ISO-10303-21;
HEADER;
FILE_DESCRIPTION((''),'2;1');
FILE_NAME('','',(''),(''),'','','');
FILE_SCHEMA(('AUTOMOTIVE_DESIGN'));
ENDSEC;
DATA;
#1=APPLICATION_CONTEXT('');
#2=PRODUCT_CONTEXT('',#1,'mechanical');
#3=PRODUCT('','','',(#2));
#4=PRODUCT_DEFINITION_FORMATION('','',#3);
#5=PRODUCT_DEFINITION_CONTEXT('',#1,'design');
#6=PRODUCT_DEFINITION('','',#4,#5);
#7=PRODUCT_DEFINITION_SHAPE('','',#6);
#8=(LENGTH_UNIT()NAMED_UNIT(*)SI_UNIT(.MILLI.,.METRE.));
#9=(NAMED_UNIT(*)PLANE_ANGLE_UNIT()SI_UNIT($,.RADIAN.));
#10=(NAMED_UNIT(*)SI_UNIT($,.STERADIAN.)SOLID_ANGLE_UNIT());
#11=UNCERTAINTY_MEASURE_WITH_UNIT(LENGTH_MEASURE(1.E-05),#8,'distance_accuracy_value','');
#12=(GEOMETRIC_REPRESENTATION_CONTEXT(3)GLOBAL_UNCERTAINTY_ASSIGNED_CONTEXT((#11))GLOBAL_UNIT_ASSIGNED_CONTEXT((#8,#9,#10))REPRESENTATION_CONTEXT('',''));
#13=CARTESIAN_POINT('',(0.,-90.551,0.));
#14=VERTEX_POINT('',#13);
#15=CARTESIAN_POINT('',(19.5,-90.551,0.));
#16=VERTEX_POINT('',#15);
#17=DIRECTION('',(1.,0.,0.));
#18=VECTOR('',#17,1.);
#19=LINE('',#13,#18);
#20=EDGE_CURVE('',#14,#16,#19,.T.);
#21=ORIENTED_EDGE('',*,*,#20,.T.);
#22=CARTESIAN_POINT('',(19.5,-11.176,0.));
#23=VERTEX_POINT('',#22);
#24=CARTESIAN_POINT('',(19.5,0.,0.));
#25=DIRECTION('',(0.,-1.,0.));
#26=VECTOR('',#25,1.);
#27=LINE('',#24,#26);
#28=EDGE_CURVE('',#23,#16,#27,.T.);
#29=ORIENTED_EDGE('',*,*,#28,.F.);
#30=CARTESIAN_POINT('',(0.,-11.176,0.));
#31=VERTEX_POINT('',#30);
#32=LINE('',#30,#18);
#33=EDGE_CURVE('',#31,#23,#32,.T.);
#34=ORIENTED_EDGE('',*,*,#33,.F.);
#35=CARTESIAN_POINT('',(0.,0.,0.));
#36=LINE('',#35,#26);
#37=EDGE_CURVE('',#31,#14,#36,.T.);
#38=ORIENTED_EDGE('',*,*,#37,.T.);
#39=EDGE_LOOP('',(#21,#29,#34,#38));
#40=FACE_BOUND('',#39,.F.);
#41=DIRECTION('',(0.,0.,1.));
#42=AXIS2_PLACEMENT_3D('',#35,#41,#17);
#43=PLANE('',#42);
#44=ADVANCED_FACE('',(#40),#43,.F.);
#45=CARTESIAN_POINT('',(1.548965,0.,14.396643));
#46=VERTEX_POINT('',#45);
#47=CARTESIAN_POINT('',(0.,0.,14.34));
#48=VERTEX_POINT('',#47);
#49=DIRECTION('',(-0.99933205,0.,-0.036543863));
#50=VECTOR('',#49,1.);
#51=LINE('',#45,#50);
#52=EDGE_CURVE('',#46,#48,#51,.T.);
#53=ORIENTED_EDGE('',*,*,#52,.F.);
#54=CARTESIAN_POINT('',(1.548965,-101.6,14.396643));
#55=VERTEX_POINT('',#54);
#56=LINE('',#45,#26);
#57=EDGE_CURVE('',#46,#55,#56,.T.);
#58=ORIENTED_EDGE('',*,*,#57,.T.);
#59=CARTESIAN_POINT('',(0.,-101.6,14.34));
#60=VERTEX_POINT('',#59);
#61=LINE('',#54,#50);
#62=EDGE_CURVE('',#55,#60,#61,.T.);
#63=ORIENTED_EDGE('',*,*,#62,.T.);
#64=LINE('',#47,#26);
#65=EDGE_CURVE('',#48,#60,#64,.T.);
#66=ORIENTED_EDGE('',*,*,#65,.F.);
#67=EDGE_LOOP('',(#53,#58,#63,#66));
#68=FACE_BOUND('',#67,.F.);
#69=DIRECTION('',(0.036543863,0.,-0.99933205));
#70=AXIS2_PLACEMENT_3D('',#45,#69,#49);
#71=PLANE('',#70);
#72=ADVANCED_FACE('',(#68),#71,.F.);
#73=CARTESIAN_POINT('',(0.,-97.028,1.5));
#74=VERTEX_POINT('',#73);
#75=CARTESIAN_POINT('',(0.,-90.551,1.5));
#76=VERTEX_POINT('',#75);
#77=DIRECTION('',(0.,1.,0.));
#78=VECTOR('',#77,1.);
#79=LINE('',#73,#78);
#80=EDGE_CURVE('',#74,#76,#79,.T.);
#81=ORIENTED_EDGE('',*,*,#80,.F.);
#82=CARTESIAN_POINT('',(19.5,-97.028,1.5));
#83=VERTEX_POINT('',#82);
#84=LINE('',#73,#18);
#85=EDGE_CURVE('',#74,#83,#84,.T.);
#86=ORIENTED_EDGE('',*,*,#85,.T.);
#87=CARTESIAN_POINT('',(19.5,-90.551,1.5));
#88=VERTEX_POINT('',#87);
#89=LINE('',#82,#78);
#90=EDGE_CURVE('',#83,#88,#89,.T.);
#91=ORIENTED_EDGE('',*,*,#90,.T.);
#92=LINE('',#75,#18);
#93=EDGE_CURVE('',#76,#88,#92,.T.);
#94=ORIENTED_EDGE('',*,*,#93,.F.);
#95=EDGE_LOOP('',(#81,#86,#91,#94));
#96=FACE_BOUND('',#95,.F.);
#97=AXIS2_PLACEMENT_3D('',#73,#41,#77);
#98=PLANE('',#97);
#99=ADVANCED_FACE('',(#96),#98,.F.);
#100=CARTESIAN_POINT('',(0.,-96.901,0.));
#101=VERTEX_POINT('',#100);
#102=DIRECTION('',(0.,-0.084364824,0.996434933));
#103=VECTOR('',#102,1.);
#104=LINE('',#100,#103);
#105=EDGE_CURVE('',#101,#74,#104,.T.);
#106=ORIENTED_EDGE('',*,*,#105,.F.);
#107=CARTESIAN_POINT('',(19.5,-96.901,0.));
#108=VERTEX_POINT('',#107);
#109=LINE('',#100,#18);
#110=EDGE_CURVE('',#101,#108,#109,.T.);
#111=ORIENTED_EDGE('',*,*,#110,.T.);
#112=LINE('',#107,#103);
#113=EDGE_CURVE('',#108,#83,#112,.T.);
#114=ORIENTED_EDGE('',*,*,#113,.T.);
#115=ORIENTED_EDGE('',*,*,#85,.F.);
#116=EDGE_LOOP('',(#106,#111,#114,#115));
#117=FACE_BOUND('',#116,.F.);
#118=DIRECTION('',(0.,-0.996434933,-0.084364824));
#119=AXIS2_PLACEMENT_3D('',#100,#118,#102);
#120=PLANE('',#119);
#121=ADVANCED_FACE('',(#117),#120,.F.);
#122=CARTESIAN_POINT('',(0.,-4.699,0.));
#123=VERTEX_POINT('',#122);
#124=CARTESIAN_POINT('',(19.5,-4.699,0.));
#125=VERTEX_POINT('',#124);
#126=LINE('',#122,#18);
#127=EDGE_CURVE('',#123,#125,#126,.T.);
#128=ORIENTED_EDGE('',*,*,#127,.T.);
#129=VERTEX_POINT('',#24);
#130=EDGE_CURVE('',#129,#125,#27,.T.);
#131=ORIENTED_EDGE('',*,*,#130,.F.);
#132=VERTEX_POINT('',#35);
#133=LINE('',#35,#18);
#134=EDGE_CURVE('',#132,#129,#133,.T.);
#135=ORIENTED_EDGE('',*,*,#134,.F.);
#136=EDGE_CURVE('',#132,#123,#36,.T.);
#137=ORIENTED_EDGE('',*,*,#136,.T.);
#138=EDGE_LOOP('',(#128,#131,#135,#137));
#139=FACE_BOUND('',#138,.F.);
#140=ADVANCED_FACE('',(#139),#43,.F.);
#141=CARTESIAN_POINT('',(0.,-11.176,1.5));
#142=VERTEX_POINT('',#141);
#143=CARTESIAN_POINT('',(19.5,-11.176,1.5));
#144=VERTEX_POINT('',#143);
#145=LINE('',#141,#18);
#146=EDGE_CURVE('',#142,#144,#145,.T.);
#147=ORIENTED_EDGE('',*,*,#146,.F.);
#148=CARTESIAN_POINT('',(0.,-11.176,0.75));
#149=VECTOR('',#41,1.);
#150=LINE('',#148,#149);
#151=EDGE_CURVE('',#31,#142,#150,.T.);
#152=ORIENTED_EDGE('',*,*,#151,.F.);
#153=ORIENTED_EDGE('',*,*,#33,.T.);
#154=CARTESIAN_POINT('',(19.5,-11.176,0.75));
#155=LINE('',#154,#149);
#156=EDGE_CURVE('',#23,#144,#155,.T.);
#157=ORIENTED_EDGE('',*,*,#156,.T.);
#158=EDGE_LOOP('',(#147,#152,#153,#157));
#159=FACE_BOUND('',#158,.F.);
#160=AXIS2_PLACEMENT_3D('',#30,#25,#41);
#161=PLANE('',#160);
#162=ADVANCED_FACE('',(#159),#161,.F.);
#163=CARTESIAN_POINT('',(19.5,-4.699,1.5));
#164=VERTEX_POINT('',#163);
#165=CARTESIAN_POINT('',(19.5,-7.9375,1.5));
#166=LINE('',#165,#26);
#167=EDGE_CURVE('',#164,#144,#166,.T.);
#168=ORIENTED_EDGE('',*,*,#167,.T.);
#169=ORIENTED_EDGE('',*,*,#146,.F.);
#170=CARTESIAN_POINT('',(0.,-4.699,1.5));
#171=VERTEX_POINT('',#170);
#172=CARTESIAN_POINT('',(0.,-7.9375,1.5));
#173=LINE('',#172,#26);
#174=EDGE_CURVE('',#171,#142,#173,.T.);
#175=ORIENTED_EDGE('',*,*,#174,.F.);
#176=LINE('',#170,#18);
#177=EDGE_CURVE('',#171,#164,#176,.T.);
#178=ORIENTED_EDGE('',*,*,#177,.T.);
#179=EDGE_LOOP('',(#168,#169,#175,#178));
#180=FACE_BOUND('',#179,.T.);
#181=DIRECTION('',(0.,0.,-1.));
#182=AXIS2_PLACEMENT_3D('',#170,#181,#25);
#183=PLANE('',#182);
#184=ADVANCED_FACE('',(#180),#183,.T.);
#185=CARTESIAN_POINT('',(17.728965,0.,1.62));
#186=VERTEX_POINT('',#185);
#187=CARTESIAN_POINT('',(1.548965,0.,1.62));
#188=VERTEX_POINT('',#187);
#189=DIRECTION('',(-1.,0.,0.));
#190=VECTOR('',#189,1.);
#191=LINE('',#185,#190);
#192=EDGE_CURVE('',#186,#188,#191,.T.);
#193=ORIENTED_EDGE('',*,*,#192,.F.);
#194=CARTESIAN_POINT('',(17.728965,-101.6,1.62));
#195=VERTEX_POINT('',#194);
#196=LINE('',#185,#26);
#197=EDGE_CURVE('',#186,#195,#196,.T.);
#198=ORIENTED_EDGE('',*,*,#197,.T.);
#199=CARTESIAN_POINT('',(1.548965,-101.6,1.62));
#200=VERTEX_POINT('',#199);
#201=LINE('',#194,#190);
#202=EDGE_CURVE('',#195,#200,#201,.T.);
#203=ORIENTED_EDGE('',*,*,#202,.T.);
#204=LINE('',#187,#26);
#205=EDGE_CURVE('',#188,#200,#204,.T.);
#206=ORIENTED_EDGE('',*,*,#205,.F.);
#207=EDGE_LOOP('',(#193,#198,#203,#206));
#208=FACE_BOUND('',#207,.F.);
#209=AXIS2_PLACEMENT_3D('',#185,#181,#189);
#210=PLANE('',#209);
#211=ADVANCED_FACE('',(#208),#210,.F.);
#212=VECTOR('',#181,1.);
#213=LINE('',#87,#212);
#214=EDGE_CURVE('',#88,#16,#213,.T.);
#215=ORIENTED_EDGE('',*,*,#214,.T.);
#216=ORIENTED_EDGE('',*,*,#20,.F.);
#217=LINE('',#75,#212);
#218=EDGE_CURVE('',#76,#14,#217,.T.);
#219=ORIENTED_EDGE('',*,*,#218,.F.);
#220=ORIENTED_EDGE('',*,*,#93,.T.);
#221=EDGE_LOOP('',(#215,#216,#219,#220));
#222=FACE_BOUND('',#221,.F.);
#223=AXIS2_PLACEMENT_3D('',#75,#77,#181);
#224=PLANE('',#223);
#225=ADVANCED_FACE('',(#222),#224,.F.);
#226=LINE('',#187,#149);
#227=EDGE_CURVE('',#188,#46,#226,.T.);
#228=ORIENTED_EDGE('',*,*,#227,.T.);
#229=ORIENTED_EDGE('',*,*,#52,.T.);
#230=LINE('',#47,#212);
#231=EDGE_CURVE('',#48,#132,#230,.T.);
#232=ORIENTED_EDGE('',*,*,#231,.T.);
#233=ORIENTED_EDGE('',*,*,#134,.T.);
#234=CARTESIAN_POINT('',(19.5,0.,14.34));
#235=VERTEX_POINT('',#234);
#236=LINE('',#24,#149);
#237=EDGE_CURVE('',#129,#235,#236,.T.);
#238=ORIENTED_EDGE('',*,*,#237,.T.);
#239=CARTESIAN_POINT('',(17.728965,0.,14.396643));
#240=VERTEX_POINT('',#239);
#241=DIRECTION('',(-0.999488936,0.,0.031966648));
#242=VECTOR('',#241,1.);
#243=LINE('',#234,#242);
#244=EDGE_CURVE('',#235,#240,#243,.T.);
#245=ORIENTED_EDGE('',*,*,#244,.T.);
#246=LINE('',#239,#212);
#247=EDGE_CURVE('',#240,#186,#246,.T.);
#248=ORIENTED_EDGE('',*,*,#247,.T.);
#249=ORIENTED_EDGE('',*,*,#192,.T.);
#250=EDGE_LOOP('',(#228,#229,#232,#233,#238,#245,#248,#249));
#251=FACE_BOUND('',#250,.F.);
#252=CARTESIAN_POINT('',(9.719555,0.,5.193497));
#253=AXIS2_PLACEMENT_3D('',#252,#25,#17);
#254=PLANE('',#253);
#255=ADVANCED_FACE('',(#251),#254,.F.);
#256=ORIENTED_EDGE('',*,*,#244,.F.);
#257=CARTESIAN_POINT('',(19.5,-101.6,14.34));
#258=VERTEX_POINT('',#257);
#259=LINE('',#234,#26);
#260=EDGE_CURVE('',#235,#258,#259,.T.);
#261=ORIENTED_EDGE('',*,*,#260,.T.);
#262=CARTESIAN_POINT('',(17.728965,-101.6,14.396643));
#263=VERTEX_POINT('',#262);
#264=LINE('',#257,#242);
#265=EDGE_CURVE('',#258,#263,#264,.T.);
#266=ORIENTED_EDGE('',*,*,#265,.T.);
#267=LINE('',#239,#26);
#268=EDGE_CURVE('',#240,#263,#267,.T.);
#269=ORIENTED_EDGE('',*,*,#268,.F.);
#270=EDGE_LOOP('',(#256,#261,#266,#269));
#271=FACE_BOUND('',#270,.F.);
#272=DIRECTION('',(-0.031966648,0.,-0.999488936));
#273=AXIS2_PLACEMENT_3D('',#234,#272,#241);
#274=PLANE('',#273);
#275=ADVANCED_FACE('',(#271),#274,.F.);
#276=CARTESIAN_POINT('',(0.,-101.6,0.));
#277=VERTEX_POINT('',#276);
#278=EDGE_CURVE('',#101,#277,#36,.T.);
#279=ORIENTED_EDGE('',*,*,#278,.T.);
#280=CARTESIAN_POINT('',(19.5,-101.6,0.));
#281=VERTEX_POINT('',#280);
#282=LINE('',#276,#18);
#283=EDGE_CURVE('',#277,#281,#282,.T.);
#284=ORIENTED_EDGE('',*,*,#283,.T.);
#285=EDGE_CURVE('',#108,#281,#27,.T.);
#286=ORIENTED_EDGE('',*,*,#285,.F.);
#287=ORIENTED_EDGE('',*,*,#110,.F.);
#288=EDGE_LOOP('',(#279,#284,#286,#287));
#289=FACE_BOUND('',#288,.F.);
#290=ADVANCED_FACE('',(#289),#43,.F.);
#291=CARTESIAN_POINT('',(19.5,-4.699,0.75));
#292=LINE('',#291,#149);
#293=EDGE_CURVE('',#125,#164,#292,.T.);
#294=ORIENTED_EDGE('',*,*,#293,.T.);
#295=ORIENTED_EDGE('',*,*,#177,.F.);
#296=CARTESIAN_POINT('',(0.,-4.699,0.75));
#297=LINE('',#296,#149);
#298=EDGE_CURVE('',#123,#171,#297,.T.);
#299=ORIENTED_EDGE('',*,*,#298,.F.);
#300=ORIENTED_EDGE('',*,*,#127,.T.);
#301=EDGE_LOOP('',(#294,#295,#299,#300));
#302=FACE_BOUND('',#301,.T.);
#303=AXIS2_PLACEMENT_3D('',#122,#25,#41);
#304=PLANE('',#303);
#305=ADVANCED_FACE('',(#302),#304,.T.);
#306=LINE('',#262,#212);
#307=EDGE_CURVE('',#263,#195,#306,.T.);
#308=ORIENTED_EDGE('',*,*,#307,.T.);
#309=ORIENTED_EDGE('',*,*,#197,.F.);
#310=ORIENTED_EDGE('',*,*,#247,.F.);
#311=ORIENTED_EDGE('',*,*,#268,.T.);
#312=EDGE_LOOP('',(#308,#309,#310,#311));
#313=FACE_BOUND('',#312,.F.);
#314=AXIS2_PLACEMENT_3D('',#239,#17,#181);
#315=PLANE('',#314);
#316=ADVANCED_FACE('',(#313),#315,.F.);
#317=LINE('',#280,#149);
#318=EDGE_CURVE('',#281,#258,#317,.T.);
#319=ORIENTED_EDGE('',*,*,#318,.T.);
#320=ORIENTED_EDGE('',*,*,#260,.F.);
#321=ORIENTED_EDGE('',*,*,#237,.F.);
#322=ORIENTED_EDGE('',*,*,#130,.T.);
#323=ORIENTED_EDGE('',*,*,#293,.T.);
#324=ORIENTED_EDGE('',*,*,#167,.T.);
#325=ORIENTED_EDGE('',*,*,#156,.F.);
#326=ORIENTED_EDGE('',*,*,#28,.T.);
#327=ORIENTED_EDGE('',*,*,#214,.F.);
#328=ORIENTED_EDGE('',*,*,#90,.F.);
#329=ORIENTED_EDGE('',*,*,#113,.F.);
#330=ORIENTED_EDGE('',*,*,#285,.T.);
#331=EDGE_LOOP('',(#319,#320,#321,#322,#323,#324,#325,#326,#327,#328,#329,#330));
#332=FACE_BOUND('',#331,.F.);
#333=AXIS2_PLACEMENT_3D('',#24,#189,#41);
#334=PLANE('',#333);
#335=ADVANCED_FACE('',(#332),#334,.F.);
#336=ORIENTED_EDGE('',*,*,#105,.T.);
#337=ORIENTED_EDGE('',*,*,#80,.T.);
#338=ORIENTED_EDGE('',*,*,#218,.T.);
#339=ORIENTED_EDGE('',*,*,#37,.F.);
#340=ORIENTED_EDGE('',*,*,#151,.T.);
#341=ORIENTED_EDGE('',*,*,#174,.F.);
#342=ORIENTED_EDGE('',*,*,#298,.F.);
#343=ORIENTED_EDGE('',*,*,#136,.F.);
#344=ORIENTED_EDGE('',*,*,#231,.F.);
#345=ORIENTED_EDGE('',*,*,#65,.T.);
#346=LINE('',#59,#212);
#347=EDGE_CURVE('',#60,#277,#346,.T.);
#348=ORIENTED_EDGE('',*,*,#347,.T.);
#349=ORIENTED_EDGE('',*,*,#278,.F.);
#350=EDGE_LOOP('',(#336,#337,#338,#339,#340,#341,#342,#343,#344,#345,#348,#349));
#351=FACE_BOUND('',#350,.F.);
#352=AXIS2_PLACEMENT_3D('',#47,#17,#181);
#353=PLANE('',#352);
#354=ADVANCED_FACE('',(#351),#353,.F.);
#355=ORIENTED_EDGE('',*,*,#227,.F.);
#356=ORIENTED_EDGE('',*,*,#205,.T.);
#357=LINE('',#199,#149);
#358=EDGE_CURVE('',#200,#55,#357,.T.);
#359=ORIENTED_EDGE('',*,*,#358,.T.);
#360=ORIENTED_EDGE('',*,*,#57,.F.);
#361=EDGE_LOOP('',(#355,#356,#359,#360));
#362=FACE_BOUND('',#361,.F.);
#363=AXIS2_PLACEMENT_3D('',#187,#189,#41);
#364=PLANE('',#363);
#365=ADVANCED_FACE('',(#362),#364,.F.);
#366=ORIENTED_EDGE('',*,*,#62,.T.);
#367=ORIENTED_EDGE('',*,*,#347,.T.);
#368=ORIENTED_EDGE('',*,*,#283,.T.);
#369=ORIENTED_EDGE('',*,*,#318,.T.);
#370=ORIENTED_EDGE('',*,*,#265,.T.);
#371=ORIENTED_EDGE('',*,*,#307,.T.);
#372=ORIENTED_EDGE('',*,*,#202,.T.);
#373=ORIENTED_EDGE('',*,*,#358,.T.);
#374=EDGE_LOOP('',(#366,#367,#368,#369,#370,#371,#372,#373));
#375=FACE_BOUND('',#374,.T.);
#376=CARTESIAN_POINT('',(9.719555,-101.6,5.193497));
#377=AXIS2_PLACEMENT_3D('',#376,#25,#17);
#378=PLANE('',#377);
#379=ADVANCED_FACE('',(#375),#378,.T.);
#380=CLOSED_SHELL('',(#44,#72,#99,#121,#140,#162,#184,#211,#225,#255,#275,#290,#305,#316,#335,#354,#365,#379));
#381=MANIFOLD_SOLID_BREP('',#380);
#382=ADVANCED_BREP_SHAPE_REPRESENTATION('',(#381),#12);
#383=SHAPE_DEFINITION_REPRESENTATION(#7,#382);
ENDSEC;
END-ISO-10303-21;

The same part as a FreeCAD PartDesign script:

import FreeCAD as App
import Part
import Sketcher
from FreeCAD import Vector
Q = App.Units.Quantity


def add_polygon(sketch, points):
    """Adds a closed chain of lines whose ends are joined by coincident constraints."""
    first, n = sketch.GeometryCount, len(points)
    for a, b in zip(points, points[1:] + points[:1]):
        sketch.addGeometry(Part.LineSegment(App.Vector(*a, 0), App.Vector(*b, 0)), False)
    for i in range(n):
        sketch.addConstraint(Sketcher.Constraint("Coincident", first + i, 2, first + (i + 1) % n, 1))

doc = App.newDocument("Part")
body = doc.addObject("PartDesign::Body", "Body")

sketch1 = body.newObject("Sketcher::SketchObject", "Sketch")
sketch1.AttachmentSupport = (doc.getObject("XZ_Plane"), [""])
sketch1.MapMode = "FlatFace"
add_polygon(sketch1, [(0, 14.3), (0, 0), (19.5, 0), (19.5, 14.3), (17.7, 14.4), (17.7, 1.6), (1.5, 1.6), (1.5, 14.4)])
sketch1.addConstraint([
    Sketcher.Constraint("Vertical", 0),
    Sketcher.Constraint("Horizontal", 1),
    Sketcher.Constraint("Vertical", 2),
    Sketcher.Constraint("Vertical", 4),
    Sketcher.Constraint("Horizontal", 5),
    Sketcher.Constraint("Vertical", 6),
    Sketcher.Constraint("Coincident", 0, 2, -1, 1),
    Sketcher.Constraint("Horizontal", 3, 2, 6, 2),
    Sketcher.Constraint("Horizontal", 2, 2, 7, 2),
    Sketcher.Constraint("DistanceX", 1, 1, 1, 2, Q("19.5 mm")),
    Sketcher.Constraint("DistanceX", 5, 2, 5, 1, Q("16.18 mm")),
    Sketcher.Constraint("DistanceY", 0, 2, 0, 1, Q("14.34 mm")),
    Sketcher.Constraint("Distance", 7, Q("1.55 mm")),
    Sketcher.Constraint("DistanceY", -1, 1, 4, 2, Q("1.62 mm")),
    Sketcher.Constraint("Distance", 3, Q("1.771941 mm")),
])
pad1 = body.newObject("PartDesign::Pad", "Pad")
pad1.Profile = sketch1
pad1.Length = Q("4 in")

sketch2 = body.newObject("Sketcher::SketchObject", "Sketch001")
sketch2.AttachmentSupport = (doc.getObject("YZ_Plane"), [""])
sketch2.MapMode = "FlatFace"
add_polygon(sketch2, [(-4.7, 1.5), (-4.7, 0), (-11.2, 0), (-11.2, 1.5)])
add_polygon(sketch2, [(-90.6, 1.5), (-90.6, 0), (-96.9, 0), (-97, 1.5)])
sketch2.addConstraint([
    Sketcher.Constraint("Vertical", 0),
    Sketcher.Constraint("Horizontal", 1),
    Sketcher.Constraint("Vertical", 2),
    Sketcher.Constraint("Horizontal", 3),
    Sketcher.Constraint("Vertical", 4),
    Sketcher.Constraint("Horizontal", 5),
    Sketcher.Constraint("Horizontal", 7),
    Sketcher.Constraint("PointOnObject", 0, 2, -1),
    Sketcher.Constraint("PointOnObject", 4, 2, -1),
    Sketcher.Constraint("Horizontal", 3, 2, 6, 2),
    Sketcher.Constraint("Equal", 3, 7),
    Sketcher.Constraint("DistanceX", 5, 2, 5, 1, Q("0.25 in")),
    Sketcher.Constraint("DistanceX", 1, 2, 1, 1, Q("0.255 in")),
    Sketcher.Constraint("DistanceX", 1, 2, -1, 1, Q("0.44 in")),
    Sketcher.Constraint("DistanceX", 6, 2, -1, 1, Q("3.82 in")),
    Sketcher.Constraint("DistanceY", 0, 2, 0, 1, Q("1.5 mm")),
])
pocket1 = body.newObject("PartDesign::Pocket", "Pocket")
pocket1.Profile = sketch2
pocket1.Type = "ThroughAll"
pocket1.Reversed = True

doc.recompute()
